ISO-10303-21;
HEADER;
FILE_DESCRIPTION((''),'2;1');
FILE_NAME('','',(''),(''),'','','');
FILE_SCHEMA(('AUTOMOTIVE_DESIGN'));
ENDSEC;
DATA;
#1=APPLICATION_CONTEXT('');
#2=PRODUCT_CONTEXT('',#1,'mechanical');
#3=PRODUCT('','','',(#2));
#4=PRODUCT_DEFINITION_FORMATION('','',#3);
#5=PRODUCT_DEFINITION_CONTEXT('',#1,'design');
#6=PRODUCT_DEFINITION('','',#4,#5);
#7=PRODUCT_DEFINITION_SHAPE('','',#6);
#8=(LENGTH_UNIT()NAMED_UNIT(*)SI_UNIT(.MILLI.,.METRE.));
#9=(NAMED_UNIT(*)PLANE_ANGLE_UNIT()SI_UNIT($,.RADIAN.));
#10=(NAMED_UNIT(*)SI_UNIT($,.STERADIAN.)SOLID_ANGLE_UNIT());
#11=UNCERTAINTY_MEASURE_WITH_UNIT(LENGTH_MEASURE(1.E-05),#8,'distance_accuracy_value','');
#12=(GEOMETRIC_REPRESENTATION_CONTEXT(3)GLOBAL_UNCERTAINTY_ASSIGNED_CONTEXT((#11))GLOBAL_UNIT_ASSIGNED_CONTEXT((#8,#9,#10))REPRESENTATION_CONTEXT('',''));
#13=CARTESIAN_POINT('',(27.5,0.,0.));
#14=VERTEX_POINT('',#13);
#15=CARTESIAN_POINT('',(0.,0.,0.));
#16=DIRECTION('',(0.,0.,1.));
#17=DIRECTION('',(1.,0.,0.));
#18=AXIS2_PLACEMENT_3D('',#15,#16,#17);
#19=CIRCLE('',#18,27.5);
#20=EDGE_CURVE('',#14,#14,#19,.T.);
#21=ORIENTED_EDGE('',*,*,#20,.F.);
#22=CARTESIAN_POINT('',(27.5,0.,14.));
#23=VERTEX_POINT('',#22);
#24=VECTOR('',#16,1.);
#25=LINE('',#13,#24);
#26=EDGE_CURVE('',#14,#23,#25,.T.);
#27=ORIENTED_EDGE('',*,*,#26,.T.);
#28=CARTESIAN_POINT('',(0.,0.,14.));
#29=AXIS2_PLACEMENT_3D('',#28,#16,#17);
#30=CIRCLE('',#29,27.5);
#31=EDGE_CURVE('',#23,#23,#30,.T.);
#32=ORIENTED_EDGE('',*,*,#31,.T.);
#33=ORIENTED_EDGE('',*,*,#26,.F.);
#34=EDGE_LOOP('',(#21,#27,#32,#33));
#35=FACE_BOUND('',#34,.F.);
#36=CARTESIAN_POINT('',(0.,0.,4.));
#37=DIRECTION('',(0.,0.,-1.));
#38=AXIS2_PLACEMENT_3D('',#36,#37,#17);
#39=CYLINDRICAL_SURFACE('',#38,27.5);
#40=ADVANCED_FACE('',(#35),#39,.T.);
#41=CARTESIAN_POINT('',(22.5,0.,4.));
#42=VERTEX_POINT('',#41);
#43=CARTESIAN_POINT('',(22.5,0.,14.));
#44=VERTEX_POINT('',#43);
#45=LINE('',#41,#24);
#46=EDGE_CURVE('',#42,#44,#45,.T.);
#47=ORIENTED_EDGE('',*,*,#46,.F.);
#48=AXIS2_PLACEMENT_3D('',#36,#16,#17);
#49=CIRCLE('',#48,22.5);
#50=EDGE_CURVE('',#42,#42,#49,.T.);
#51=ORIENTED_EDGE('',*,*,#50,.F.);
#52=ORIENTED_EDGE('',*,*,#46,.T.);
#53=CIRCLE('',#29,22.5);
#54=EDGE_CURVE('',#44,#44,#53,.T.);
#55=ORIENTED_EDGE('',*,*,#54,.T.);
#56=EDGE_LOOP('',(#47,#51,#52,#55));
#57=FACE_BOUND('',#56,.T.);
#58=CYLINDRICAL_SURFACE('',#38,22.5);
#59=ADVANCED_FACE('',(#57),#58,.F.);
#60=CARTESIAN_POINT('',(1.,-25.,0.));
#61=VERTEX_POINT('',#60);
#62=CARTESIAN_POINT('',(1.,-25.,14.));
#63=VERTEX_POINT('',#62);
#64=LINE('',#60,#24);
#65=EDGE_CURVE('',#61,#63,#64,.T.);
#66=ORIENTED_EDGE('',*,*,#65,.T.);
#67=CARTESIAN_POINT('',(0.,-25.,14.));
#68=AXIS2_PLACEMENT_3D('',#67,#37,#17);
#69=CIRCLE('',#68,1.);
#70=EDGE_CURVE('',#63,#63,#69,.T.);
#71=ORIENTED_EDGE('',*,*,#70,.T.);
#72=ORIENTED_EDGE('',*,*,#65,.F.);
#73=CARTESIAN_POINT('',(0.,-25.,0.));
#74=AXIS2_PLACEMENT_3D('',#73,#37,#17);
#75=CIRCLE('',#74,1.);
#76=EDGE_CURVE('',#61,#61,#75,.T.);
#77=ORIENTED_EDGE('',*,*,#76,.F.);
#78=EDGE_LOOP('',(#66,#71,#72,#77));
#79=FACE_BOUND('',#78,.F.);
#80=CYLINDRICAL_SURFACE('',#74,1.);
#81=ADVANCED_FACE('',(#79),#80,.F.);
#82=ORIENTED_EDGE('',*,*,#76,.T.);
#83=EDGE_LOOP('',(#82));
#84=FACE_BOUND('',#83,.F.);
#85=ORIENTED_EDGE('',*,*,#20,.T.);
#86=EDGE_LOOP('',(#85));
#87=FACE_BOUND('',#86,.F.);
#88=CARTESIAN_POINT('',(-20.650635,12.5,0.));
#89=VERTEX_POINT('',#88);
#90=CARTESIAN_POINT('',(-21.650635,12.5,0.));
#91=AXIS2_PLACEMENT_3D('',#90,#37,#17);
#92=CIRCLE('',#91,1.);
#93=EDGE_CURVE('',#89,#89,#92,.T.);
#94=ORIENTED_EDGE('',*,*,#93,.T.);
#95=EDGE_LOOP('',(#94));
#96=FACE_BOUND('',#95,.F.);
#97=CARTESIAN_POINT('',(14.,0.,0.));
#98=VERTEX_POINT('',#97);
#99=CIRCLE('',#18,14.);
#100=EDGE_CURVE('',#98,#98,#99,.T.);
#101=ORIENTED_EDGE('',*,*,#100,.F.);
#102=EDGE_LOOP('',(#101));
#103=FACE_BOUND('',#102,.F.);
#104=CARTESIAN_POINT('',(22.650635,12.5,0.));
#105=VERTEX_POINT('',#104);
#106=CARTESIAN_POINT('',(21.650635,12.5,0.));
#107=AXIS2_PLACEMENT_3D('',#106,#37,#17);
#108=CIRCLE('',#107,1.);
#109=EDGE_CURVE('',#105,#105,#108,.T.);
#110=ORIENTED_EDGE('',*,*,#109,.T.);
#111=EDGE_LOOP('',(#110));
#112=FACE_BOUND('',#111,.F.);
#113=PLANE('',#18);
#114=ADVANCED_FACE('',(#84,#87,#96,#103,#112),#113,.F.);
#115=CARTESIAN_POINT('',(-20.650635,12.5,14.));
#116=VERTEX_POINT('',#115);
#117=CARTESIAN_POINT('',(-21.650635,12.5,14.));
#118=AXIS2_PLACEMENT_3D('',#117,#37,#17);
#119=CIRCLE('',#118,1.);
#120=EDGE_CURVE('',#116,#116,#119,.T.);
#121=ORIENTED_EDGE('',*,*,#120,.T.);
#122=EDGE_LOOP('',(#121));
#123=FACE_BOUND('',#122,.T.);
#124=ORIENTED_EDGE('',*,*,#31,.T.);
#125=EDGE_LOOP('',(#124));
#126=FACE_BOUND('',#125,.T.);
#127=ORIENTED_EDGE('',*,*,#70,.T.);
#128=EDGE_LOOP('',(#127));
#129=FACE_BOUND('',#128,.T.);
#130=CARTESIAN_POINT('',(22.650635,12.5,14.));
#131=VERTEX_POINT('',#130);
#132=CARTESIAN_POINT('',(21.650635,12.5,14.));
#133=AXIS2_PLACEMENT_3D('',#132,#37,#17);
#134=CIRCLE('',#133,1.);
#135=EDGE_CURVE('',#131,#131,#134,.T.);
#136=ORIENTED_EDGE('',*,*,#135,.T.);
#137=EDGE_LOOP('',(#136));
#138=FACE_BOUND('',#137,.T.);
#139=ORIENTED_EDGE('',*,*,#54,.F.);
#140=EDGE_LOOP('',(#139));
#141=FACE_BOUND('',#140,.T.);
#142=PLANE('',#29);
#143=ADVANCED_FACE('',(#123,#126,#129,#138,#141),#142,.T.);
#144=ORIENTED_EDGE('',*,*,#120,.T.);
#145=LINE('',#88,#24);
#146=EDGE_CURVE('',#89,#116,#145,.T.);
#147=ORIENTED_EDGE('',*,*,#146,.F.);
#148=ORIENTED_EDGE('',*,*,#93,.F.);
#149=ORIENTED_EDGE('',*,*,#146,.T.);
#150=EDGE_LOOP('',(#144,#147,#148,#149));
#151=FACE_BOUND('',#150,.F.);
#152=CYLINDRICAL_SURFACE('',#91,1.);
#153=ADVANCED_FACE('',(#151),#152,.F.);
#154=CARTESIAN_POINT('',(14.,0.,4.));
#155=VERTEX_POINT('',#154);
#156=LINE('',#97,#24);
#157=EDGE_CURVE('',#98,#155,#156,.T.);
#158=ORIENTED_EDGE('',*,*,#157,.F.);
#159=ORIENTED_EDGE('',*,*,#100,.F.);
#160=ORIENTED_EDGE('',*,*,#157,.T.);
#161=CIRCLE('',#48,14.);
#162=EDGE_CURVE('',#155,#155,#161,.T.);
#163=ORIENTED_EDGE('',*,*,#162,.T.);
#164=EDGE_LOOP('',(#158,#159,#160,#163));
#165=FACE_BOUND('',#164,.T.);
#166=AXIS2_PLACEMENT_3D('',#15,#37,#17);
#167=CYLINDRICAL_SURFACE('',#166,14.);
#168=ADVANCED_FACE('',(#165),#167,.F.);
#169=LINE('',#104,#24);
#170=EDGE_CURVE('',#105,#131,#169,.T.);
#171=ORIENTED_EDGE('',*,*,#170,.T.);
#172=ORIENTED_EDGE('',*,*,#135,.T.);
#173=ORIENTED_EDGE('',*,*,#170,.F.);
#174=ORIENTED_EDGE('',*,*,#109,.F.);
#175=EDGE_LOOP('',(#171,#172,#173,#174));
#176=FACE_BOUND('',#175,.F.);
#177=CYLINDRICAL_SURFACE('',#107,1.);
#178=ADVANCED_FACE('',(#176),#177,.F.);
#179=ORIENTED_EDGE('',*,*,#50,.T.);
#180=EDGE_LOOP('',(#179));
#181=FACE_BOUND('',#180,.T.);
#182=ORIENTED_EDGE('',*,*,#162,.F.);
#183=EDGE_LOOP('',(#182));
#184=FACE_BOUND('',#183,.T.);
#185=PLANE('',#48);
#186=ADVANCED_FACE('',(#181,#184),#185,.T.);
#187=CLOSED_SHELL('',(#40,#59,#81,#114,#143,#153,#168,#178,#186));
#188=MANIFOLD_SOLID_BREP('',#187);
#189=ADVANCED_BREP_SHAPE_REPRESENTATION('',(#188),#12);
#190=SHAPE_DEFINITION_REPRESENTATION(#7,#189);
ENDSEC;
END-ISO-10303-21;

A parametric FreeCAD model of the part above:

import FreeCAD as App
import Part
import Sketcher
from FreeCAD import Vector

doc = App.newDocument("Part")
params = doc.addObject("Spreadsheet::Sheet", "Params")
for row, (alias, value) in enumerate([
    ("sketch1_diameter", "55 mm"),
    ("sketch1_diameter2", "28 mm"),
    ("pad1_length", "4 mm"),
    ("sketch2_diameter", "55 mm"),
    ("sketch2_diameter2", "45 mm"),
    ("pad2_length", "10 mm"),
    ("sketch3_diameter", "2 mm"),
], start=1):
    params.set(f"A{row}", alias)
    params.set(f"B{row}", "=" + value)
    params.setAlias(f"B{row}", alias)

body = doc.addObject("PartDesign::Body", "Body")

# Sketch on XY plane
sketch1 = doc.addObject("Sketcher::SketchObject", "Sketch")
body.addObject(sketch1)
sketch1.AttachmentSupport = (doc.XY_Plane, [""])
sketch1.MapMode = "FlatFace"
sketch1.addGeometry([
    Part.Circle(Vector(0, 0, 0), Vector(0, 0, 1), 28),
    Part.Circle(Vector(0, 0, 0), Vector(0, 0, 1), 14),
], False)
sketch1.addConstraint([
    Sketcher.Constraint("Coincident", 0, 3, -1, 1),
    Sketcher.Constraint("Coincident", 1, 3, -1, 1),
    Sketcher.Constraint("Diameter", 0, 55.0),
    Sketcher.Constraint("Diameter", 1, 28.0),
])
sketch1.setExpression("Constraints[2]", "Params.sketch1_diameter")
sketch1.setExpression("Constraints[3]", "Params.sketch1_diameter2")
pad1 = doc.addObject("PartDesign::Pad", "Pad")
body.addObject(pad1)
pad1.Profile = sketch1
pad1.setExpression("Length", "Params.pad1_length")

# Sketch on XY plane
sketch2 = doc.addObject("Sketcher::SketchObject", "Sketch001")
body.addObject(sketch2)
sketch2.AttachmentSupport = (doc.XY_Plane, [""])
sketch2.MapMode = "FlatFace"
sketch2.AttachmentOffset = App.Placement(Vector(0, 0, 4), App.Rotation())
sketch2.addGeometry([
    Part.Circle(Vector(0, 0, 0), Vector(0, 0, 1), 28),
    Part.Circle(Vector(0, 0, 0), Vector(0, 0, 1), 22),
], False)
sketch2.addConstraint([
    Sketcher.Constraint("Coincident", 0, 3, -1, 1),
    Sketcher.Constraint("Coincident", 1, 3, -1, 1),
    Sketcher.Constraint("Diameter", 0, 55.0),
    Sketcher.Constraint("Diameter", 1, 45.0),
])
sketch2.setExpression("Constraints[2]", "Params.sketch2_diameter")
sketch2.setExpression("Constraints[3]", "Params.sketch2_diameter2")
pad2 = doc.addObject("PartDesign::Pad", "Pad001")
body.addObject(pad2)
pad2.Profile = sketch2
pad2.setExpression("Length", "Params.pad2_length")

# Sketch on XY plane
sketch3 = doc.addObject("Sketcher::SketchObject", "Sketch002")
body.addObject(sketch3)
sketch3.AttachmentSupport = (doc.XY_Plane, [""])
sketch3.MapMode = "FlatFace"
sketch3.addGeometry([
    Part.Circle(Vector(0, -25, 0), Vector(0, 0, 1), 1),
    Part.Circle(Vector(-21.7, 12.5, 0), Vector(0, 0, 1), 1),
    Part.Circle(Vector(21.7, 12.5, 0), Vector(0, 0, 1), 1),
], False)
sketch3.addConstraint([
    Sketcher.Constraint("Equal", 0, 1),
    Sketcher.Constraint("Equal", 1, 2),
    Sketcher.Constraint("Symmetric", 1, 3, 2, 3, -2),
    Sketcher.Constraint("PointOnObject", 0, 3, -2),
    Sketcher.Constraint("Diameter", 0, 2.0),
    Sketcher.Constraint("DistanceY", 0, 3, -1, 1, 25.0),
    Sketcher.Constraint("DistanceY", -1, 1, 1, 3, 12.5),
    Sketcher.Constraint("DistanceX", 1, 3, 2, 3, 43.30127),
])
sketch3.setExpression("Constraints[4]", "Params.sketch3_diameter")
pocket1 = doc.addObject("PartDesign::Pocket", "Pocket")
body.addObject(pocket1)
pocket1.Profile = sketch3
pocket1.Type = "ThroughAll"
pocket1.Reversed = True

doc.recompute()
